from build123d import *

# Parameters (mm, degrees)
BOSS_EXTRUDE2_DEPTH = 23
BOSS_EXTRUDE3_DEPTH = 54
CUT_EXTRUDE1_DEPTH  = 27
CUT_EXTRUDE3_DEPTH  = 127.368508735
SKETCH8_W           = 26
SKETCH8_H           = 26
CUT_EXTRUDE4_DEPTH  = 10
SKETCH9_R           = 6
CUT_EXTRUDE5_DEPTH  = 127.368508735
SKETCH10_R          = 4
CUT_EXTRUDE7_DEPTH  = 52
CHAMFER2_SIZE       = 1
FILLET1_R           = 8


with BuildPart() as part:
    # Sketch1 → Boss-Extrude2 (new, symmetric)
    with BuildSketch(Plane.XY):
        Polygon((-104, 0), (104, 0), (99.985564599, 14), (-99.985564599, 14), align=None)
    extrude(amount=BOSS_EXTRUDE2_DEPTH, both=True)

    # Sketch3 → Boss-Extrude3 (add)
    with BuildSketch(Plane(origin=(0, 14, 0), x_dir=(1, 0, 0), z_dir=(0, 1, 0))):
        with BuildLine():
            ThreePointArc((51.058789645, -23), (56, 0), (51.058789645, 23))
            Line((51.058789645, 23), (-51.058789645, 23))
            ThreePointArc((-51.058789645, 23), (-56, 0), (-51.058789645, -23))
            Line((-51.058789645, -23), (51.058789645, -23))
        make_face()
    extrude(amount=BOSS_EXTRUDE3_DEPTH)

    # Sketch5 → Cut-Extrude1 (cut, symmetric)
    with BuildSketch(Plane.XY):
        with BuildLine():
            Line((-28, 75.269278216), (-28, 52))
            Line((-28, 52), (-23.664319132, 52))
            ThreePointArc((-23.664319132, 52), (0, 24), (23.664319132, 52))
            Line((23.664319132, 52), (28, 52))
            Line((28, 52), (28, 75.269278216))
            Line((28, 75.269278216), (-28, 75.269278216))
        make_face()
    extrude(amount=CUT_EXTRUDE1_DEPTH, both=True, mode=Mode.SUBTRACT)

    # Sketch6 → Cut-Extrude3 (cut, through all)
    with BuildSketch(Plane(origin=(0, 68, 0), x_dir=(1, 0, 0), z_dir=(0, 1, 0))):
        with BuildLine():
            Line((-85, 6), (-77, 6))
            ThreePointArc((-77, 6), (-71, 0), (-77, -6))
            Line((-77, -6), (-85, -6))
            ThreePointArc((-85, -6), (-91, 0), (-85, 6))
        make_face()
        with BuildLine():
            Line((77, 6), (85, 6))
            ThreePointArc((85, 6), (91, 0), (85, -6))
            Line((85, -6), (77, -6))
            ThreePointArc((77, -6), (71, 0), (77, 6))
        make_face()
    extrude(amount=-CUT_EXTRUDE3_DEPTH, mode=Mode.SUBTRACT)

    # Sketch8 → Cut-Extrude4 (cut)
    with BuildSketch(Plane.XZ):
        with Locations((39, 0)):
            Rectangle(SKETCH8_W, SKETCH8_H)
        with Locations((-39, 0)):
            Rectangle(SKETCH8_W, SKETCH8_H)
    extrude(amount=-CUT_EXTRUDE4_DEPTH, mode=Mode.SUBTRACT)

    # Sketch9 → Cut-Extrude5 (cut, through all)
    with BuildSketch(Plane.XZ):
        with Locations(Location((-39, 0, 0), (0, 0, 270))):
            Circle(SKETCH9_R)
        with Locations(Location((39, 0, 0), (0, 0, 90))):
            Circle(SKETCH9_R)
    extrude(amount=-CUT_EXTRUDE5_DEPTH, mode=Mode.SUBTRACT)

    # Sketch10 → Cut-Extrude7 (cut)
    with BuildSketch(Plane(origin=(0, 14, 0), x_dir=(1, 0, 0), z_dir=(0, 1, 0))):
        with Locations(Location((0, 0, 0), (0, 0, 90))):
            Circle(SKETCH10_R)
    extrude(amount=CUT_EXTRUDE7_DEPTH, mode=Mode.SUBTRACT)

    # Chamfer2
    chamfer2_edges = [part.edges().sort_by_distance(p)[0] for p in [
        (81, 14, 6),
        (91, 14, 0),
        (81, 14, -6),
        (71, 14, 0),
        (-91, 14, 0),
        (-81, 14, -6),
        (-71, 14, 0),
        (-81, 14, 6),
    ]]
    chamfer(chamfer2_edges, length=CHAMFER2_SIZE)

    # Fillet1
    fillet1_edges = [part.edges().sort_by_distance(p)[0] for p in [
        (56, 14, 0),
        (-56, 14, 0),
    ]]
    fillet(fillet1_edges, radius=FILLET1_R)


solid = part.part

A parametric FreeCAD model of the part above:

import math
import FreeCAD as App
import Part
import Sketcher

V = App.Vector
Q = App.Units.Quantity


def edges_at(feature, points):
    """Names of the edges that pass closest to the given points."""
    edges = feature.Shape.Edges
    near = lambda p: min(range(len(edges)), key=lambda i: edges[i].distToShape(Part.Vertex(*p))[0])
    return sorted({f"Edge{near(p) + 1}" for p in points})


def add_polygon(sketch, points):
    """Adds a closed chain of lines whose ends are joined by coincident constraints."""
    first, n = sketch.GeometryCount, len(points)
    for a, b in zip(points, points[1:] + points[:1]):
        sketch.addGeometry(Part.LineSegment(App.Vector(*a, 0), App.Vector(*b, 0)), False)
    for i in range(n):
        sketch.addConstraint(Sketcher.Constraint("Coincident", first + i, 2, first + (i + 1) % n, 1))

doc = App.newDocument("Part")
body = doc.addObject("PartDesign::Body", "Body")

# Sketch on XY plane
sketch1 = body.newObject("Sketcher::SketchObject", "Sketch")
sketch1.AttachmentSupport = (doc.getObject("XY_Plane"), [""])
sketch1.MapMode = "FlatFace"
add_polygon(sketch1, [(-104, 0), (104, 0), (99.985565, 14), (-99.985565, 14)])  # lines 0-3
sketch1.addConstraint([
    Sketcher.Constraint("Horizontal", 0),
    Sketcher.Constraint("Horizontal", 2),
    Sketcher.Constraint("Symmetric", 0, 2, 3, 2, -1, 1),
    Sketcher.Constraint("Equal", 1, 3),
    Sketcher.Constraint("DistanceX", 0, 1, 0, 2, 208.0),
    Sketcher.Constraint("Angle", 1, Q("106 deg")),
    Sketcher.Constraint("DistanceY", -1, 1, 1, 2, 14.0),
])
pad1 = body.newObject("PartDesign::Pad", "Pad")
pad1.Profile = sketch1
pad1.Length = 46
pad1.Midplane = True

# Sketch on XZ plane
sketch2 = body.newObject("Sketcher::SketchObject", "Sketch001")
sketch2.AttachmentSupport = (doc.getObject("XZ_Plane"), [""])
sketch2.MapMode = "FlatFace"
sketch2.AttachmentOffset = App.Placement(V(0, 0, -14), App.Rotation())
sketch2.addGeometry([
    Part.ArcOfCircle(Part.Circle(V(0, 0, 0), V(0, 0, 1), 56), math.radians(-24.249713), math.radians(24.249713)),
    Part.LineSegment(V(51.05879, -23, 0), V(-51.05879, -23, 0)),
    Part.ArcOfCircle(Part.Circle(V(0, 0, 0), V(0, 0, 1), 56), math.radians(155.750287), math.radians(204.249713)),
    Part.LineSegment(V(-51.05879, 23, 0), V(51.05879, 23, 0)),
], False)
sketch2.addConstraint([
    Sketcher.Constraint("Coincident", 0, 1, 1, 1),
    Sketcher.Constraint("Coincident", 1, 2, 2, 2),
    Sketcher.Constraint("Coincident", 2, 1, 3, 1),
    Sketcher.Constraint("Coincident", 3, 2, 0, 2),
    Sketcher.Constraint("Horizontal", 1),
    Sketcher.Constraint("Horizontal", 3),
    Sketcher.Constraint("Coincident", 0, 3, -1, 1),
    Sketcher.Constraint("Coincident", 2, 3, -1, 1),
    Sketcher.Constraint("Equal", 0, 2),
    Sketcher.Constraint("Vertical", 1, 2, 2, 1),
    Sketcher.Constraint("Radius", 0, 56.0),
    Sketcher.Constraint("DistanceY", 0, 1, -1, 1, 23.0),
])
pad2 = body.newObject("PartDesign::Pad", "Pad001")
pad2.Profile = sketch2
pad2.Length = 54
pad2.Reversed = True

# Sketch on XY plane
sketch3 = body.newObject("Sketcher::SketchObject", "Sketch002")
sketch3.AttachmentSupport = (doc.getObject("XY_Plane"), [""])
sketch3.MapMode = "FlatFace"
sketch3.addGeometry([
    Part.LineSegment(V(-28, 75.269278, 0), V(-28, 52, 0)),  # 0
    Part.LineSegment(V(-28, 52, 0), V(-23.664319, 52, 0)),  # 1
    Part.ArcOfCircle(Part.Circle(V(0, 48, 0), V(0, 0, 1), 24), math.radians(170.405932), math.radians(369.594068)),  # 2
    Part.LineSegment(V(23.664319, 52, 0), V(28, 52, 0)),  # 3
    Part.LineSegment(V(28, 52, 0), V(28, 75.269278, 0)),  # 4
    Part.LineSegment(V(28, 75.269278, 0), V(-28, 75.269278, 0)),  # 5
], False)
sketch3.addConstraint([
    Sketcher.Constraint("Coincident", 0, 2, 1, 1),
    Sketcher.Constraint("Coincident", 1, 2, 2, 1),
    Sketcher.Constraint("Coincident", 2, 2, 3, 1),
    Sketcher.Constraint("Coincident", 3, 2, 4, 1),
    Sketcher.Constraint("Coincident", 4, 2, 5, 1),
    Sketcher.Constraint("Coincident", 5, 2, 0, 1),
    Sketcher.Constraint("Vertical", 0),
    Sketcher.Constraint("Horizontal", 1),
    Sketcher.Constraint("Horizontal", 3),
    Sketcher.Constraint("Vertical", 4),
    Sketcher.Constraint("Horizontal", 5),
    Sketcher.Constraint("Symmetric", 1, 2, 2, 2, -2),
    Sketcher.Constraint("Equal", 1, 3),
    Sketcher.Constraint("Radius", 2, 24.0),
    Sketcher.Constraint("DistanceX", 5, 2, 5, 1, 56.0),
    Sketcher.Constraint("DistanceY", -1, 1, 2, 3, 48.0),
    Sketcher.Constraint("DistanceY", -1, 1, 0, 2, 52.0),
    Sketcher.Constraint("DistanceY", 0, 2, 0, 1, 23.269278),
])
pocket1 = body.newObject("PartDesign::Pocket", "Pocket")
pocket1.Profile = sketch3
pocket1.Length = 54
pocket1.Midplane = True

# Sketch on XZ plane
sketch4 = body.newObject("Sketcher::SketchObject", "Sketch003")
sketch4.AttachmentSupport = (doc.getObject("XZ_Plane"), [""])
sketch4.MapMode = "FlatFace"
sketch4.AttachmentOffset = App.Placement(V(0, 0, -68), App.Rotation())
sketch4.addGeometry([
    Part.LineSegment(V(-77, -6, 0), V(-85, -6, 0)),  # 0
    Part.ArcOfCircle(Part.Circle(V(-85, 0, 0), V(0, 0, 1), 6), math.radians(90), math.radians(270)),  # 1
    Part.LineSegment(V(-85, 6, 0), V(-77, 6, 0)),  # 2
    Part.ArcOfCircle(Part.Circle(V(-77, 0, 0), V(0, 0, 1), 6), math.radians(-90), math.radians(90)),  # 3
    Part.LineSegment(V(85, -6, 0), V(77, -6, 0)),  # 4
    Part.ArcOfCircle(Part.Circle(V(77, 0, 0), V(0, 0, 1), 6), math.radians(90), math.radians(270)),  # 5
    Part.LineSegment(V(77, 6, 0), V(85, 6, 0)),  # 6
    Part.ArcOfCircle(Part.Circle(V(85, 0, 0), V(0, 0, 1), 6), math.radians(-90), math.radians(90)),  # 7
], False)
sketch4.addConstraint([
    Sketcher.Constraint("Tangent", 0, 2, 1, 2),
    Sketcher.Constraint("Tangent", 1, 1, 2, 1),
    Sketcher.Constraint("Tangent", 2, 2, 3, 2),
    Sketcher.Constraint("Tangent", 3, 1, 0, 1),
    Sketcher.Constraint("Tangent", 4, 2, 5, 2),
    Sketcher.Constraint("Tangent", 5, 1, 6, 1),
    Sketcher.Constraint("Tangent", 6, 2, 7, 2),
    Sketcher.Constraint("Tangent", 7, 1, 4, 1),
    Sketcher.Constraint("Horizontal", 0),
    Sketcher.Constraint("Horizontal", 2),
    Sketcher.Constraint("Horizontal", 4),
    Sketcher.Constraint("Horizontal", 6),
    Sketcher.Constraint("Equal", 3, 5),
    Sketcher.Constraint("Symmetric", 3, 3, 5, 3, -1, 1),
    Sketcher.Constraint("Symmetric", 1, 3, 7, 3, -2),
    Sketcher.Constraint("Radius", 1, 6.0),
    Sketcher.Constraint("DistanceX", 0, 2, 0, 1, 8.0),
    Sketcher.Constraint("DistanceX", 1, 3, -1, 1, 85.0),
])
pocket2 = body.newObject("PartDesign::Pocket", "Pocket001")
pocket2.Profile = sketch4
pocket2.Type = "ThroughAll"
pocket2.Reversed = True

# Sketch on XZ plane
sketch5 = body.newObject("Sketcher::SketchObject", "Sketch004")
sketch5.AttachmentSupport = (doc.getObject("XZ_Plane"), [""])
sketch5.MapMode = "FlatFace"
add_polygon(sketch5, [(26, 13), (26, -13), (52, -13), (52, 13)])  # lines 0-3
add_polygon(sketch5, [(-52, 13), (-52, -13), (-26, -13), (-26, 13)])  # lines 4-7
sketch5.addConstraint([
    Sketcher.Constraint("Vertical", 0),
    Sketcher.Constraint("Horizontal", 1),
    Sketcher.Constraint("Vertical", 2),
    Sketcher.Constraint("Horizontal", 3),
    Sketcher.Constraint("Vertical", 4),
    Sketcher.Constraint("Horizontal", 5),
    Sketcher.Constraint("Vertical", 6),
    Sketcher.Constraint("Horizontal", 7),
    Sketcher.Constraint("Symmetric", 2, 2, 4, 2, -1, 1),
    Sketcher.Constraint("Symmetric", 0, 2, 6, 2, -1, 1),
    Sketcher.Constraint("Horizontal", 1, 2, 4, 2),
    Sketcher.Constraint("Equal", 7, 0),
    Sketcher.Constraint("DistanceX", 1, 1, 1, 2, 26.0),
    Sketcher.Constraint("DistanceX", -1, 1, 0, 2, 26.0),
])
pocket3 = body.newObject("PartDesign::Pocket", "Pocket002")
pocket3.Profile = sketch5
pocket3.Length = 10

# Sketch on XZ plane
sketch6 = body.newObject("Sketcher::SketchObject", "Sketch005")
sketch6.AttachmentSupport = (doc.getObject("XZ_Plane"), [""])
sketch6.MapMode = "FlatFace"
sketch6.addGeometry([
    Part.Circle(V(-39, 0, 0), V(0, 0, 1), 6),
    Part.Circle(V(39, 0, 0), V(0, 0, 1), 6),
], False)
sketch6.addConstraint([
    Sketcher.Constraint("Equal", 0, 1),
    Sketcher.Constraint("Symmetric", 0, 3, 1, 3, -1, 1),
    Sketcher.Constraint("PointOnObject", 0, 3, -1),
    Sketcher.Constraint("Diameter", 0, 12.0),
    Sketcher.Constraint("DistanceX", 0, 3, -1, 1, 39.0),
])
pocket4 = body.newObject("PartDesign::Pocket", "Pocket003")
pocket4.Profile = sketch6
pocket4.Type = "ThroughAll"

# Sketch on XZ plane
sketch7 = body.newObject("Sketcher::SketchObject", "Sketch006")
sketch7.AttachmentSupport = (doc.getObject("XZ_Plane"), [""])
sketch7.MapMode = "FlatFace"
sketch7.AttachmentOffset = App.Placement(V(0, 0, -14), App.Rotation())
sketch7.addGeometry(Part.Circle(V(0, 0, 0), V(0, 0, 1), 4), False)
sketch7.addConstraint([
    Sketcher.Constraint("Coincident", 0, 3, -1, 1),
    Sketcher.Constraint("Diameter", 0, 8.0),
])
pocket5 = body.newObject("PartDesign::Pocket", "Pocket004")
pocket5.Profile = sketch7
pocket5.Length = 52
doc.recompute()

chamfer = body.newObject("PartDesign::Chamfer", "Chamfer")
chamfer.Base = (pocket5, edges_at(pocket5, [
    (81, 14, 6),
    (91, 14, 0),
    (81, 14, -6),
    (71, 14, 0),
    (-91, 14, 0),
    (-81, 14, -6),
    (-71, 14, 0),
    (-81, 14, 6),
]))
chamfer.Size = 1
doc.recompute()

fillet = body.newObject("PartDesign::Fillet", "Fillet")
fillet.Base = (chamfer, edges_at(chamfer, [(56, 14, 0), (-56, 14, 0)]))
fillet.Radius = 8

doc.recompute()
